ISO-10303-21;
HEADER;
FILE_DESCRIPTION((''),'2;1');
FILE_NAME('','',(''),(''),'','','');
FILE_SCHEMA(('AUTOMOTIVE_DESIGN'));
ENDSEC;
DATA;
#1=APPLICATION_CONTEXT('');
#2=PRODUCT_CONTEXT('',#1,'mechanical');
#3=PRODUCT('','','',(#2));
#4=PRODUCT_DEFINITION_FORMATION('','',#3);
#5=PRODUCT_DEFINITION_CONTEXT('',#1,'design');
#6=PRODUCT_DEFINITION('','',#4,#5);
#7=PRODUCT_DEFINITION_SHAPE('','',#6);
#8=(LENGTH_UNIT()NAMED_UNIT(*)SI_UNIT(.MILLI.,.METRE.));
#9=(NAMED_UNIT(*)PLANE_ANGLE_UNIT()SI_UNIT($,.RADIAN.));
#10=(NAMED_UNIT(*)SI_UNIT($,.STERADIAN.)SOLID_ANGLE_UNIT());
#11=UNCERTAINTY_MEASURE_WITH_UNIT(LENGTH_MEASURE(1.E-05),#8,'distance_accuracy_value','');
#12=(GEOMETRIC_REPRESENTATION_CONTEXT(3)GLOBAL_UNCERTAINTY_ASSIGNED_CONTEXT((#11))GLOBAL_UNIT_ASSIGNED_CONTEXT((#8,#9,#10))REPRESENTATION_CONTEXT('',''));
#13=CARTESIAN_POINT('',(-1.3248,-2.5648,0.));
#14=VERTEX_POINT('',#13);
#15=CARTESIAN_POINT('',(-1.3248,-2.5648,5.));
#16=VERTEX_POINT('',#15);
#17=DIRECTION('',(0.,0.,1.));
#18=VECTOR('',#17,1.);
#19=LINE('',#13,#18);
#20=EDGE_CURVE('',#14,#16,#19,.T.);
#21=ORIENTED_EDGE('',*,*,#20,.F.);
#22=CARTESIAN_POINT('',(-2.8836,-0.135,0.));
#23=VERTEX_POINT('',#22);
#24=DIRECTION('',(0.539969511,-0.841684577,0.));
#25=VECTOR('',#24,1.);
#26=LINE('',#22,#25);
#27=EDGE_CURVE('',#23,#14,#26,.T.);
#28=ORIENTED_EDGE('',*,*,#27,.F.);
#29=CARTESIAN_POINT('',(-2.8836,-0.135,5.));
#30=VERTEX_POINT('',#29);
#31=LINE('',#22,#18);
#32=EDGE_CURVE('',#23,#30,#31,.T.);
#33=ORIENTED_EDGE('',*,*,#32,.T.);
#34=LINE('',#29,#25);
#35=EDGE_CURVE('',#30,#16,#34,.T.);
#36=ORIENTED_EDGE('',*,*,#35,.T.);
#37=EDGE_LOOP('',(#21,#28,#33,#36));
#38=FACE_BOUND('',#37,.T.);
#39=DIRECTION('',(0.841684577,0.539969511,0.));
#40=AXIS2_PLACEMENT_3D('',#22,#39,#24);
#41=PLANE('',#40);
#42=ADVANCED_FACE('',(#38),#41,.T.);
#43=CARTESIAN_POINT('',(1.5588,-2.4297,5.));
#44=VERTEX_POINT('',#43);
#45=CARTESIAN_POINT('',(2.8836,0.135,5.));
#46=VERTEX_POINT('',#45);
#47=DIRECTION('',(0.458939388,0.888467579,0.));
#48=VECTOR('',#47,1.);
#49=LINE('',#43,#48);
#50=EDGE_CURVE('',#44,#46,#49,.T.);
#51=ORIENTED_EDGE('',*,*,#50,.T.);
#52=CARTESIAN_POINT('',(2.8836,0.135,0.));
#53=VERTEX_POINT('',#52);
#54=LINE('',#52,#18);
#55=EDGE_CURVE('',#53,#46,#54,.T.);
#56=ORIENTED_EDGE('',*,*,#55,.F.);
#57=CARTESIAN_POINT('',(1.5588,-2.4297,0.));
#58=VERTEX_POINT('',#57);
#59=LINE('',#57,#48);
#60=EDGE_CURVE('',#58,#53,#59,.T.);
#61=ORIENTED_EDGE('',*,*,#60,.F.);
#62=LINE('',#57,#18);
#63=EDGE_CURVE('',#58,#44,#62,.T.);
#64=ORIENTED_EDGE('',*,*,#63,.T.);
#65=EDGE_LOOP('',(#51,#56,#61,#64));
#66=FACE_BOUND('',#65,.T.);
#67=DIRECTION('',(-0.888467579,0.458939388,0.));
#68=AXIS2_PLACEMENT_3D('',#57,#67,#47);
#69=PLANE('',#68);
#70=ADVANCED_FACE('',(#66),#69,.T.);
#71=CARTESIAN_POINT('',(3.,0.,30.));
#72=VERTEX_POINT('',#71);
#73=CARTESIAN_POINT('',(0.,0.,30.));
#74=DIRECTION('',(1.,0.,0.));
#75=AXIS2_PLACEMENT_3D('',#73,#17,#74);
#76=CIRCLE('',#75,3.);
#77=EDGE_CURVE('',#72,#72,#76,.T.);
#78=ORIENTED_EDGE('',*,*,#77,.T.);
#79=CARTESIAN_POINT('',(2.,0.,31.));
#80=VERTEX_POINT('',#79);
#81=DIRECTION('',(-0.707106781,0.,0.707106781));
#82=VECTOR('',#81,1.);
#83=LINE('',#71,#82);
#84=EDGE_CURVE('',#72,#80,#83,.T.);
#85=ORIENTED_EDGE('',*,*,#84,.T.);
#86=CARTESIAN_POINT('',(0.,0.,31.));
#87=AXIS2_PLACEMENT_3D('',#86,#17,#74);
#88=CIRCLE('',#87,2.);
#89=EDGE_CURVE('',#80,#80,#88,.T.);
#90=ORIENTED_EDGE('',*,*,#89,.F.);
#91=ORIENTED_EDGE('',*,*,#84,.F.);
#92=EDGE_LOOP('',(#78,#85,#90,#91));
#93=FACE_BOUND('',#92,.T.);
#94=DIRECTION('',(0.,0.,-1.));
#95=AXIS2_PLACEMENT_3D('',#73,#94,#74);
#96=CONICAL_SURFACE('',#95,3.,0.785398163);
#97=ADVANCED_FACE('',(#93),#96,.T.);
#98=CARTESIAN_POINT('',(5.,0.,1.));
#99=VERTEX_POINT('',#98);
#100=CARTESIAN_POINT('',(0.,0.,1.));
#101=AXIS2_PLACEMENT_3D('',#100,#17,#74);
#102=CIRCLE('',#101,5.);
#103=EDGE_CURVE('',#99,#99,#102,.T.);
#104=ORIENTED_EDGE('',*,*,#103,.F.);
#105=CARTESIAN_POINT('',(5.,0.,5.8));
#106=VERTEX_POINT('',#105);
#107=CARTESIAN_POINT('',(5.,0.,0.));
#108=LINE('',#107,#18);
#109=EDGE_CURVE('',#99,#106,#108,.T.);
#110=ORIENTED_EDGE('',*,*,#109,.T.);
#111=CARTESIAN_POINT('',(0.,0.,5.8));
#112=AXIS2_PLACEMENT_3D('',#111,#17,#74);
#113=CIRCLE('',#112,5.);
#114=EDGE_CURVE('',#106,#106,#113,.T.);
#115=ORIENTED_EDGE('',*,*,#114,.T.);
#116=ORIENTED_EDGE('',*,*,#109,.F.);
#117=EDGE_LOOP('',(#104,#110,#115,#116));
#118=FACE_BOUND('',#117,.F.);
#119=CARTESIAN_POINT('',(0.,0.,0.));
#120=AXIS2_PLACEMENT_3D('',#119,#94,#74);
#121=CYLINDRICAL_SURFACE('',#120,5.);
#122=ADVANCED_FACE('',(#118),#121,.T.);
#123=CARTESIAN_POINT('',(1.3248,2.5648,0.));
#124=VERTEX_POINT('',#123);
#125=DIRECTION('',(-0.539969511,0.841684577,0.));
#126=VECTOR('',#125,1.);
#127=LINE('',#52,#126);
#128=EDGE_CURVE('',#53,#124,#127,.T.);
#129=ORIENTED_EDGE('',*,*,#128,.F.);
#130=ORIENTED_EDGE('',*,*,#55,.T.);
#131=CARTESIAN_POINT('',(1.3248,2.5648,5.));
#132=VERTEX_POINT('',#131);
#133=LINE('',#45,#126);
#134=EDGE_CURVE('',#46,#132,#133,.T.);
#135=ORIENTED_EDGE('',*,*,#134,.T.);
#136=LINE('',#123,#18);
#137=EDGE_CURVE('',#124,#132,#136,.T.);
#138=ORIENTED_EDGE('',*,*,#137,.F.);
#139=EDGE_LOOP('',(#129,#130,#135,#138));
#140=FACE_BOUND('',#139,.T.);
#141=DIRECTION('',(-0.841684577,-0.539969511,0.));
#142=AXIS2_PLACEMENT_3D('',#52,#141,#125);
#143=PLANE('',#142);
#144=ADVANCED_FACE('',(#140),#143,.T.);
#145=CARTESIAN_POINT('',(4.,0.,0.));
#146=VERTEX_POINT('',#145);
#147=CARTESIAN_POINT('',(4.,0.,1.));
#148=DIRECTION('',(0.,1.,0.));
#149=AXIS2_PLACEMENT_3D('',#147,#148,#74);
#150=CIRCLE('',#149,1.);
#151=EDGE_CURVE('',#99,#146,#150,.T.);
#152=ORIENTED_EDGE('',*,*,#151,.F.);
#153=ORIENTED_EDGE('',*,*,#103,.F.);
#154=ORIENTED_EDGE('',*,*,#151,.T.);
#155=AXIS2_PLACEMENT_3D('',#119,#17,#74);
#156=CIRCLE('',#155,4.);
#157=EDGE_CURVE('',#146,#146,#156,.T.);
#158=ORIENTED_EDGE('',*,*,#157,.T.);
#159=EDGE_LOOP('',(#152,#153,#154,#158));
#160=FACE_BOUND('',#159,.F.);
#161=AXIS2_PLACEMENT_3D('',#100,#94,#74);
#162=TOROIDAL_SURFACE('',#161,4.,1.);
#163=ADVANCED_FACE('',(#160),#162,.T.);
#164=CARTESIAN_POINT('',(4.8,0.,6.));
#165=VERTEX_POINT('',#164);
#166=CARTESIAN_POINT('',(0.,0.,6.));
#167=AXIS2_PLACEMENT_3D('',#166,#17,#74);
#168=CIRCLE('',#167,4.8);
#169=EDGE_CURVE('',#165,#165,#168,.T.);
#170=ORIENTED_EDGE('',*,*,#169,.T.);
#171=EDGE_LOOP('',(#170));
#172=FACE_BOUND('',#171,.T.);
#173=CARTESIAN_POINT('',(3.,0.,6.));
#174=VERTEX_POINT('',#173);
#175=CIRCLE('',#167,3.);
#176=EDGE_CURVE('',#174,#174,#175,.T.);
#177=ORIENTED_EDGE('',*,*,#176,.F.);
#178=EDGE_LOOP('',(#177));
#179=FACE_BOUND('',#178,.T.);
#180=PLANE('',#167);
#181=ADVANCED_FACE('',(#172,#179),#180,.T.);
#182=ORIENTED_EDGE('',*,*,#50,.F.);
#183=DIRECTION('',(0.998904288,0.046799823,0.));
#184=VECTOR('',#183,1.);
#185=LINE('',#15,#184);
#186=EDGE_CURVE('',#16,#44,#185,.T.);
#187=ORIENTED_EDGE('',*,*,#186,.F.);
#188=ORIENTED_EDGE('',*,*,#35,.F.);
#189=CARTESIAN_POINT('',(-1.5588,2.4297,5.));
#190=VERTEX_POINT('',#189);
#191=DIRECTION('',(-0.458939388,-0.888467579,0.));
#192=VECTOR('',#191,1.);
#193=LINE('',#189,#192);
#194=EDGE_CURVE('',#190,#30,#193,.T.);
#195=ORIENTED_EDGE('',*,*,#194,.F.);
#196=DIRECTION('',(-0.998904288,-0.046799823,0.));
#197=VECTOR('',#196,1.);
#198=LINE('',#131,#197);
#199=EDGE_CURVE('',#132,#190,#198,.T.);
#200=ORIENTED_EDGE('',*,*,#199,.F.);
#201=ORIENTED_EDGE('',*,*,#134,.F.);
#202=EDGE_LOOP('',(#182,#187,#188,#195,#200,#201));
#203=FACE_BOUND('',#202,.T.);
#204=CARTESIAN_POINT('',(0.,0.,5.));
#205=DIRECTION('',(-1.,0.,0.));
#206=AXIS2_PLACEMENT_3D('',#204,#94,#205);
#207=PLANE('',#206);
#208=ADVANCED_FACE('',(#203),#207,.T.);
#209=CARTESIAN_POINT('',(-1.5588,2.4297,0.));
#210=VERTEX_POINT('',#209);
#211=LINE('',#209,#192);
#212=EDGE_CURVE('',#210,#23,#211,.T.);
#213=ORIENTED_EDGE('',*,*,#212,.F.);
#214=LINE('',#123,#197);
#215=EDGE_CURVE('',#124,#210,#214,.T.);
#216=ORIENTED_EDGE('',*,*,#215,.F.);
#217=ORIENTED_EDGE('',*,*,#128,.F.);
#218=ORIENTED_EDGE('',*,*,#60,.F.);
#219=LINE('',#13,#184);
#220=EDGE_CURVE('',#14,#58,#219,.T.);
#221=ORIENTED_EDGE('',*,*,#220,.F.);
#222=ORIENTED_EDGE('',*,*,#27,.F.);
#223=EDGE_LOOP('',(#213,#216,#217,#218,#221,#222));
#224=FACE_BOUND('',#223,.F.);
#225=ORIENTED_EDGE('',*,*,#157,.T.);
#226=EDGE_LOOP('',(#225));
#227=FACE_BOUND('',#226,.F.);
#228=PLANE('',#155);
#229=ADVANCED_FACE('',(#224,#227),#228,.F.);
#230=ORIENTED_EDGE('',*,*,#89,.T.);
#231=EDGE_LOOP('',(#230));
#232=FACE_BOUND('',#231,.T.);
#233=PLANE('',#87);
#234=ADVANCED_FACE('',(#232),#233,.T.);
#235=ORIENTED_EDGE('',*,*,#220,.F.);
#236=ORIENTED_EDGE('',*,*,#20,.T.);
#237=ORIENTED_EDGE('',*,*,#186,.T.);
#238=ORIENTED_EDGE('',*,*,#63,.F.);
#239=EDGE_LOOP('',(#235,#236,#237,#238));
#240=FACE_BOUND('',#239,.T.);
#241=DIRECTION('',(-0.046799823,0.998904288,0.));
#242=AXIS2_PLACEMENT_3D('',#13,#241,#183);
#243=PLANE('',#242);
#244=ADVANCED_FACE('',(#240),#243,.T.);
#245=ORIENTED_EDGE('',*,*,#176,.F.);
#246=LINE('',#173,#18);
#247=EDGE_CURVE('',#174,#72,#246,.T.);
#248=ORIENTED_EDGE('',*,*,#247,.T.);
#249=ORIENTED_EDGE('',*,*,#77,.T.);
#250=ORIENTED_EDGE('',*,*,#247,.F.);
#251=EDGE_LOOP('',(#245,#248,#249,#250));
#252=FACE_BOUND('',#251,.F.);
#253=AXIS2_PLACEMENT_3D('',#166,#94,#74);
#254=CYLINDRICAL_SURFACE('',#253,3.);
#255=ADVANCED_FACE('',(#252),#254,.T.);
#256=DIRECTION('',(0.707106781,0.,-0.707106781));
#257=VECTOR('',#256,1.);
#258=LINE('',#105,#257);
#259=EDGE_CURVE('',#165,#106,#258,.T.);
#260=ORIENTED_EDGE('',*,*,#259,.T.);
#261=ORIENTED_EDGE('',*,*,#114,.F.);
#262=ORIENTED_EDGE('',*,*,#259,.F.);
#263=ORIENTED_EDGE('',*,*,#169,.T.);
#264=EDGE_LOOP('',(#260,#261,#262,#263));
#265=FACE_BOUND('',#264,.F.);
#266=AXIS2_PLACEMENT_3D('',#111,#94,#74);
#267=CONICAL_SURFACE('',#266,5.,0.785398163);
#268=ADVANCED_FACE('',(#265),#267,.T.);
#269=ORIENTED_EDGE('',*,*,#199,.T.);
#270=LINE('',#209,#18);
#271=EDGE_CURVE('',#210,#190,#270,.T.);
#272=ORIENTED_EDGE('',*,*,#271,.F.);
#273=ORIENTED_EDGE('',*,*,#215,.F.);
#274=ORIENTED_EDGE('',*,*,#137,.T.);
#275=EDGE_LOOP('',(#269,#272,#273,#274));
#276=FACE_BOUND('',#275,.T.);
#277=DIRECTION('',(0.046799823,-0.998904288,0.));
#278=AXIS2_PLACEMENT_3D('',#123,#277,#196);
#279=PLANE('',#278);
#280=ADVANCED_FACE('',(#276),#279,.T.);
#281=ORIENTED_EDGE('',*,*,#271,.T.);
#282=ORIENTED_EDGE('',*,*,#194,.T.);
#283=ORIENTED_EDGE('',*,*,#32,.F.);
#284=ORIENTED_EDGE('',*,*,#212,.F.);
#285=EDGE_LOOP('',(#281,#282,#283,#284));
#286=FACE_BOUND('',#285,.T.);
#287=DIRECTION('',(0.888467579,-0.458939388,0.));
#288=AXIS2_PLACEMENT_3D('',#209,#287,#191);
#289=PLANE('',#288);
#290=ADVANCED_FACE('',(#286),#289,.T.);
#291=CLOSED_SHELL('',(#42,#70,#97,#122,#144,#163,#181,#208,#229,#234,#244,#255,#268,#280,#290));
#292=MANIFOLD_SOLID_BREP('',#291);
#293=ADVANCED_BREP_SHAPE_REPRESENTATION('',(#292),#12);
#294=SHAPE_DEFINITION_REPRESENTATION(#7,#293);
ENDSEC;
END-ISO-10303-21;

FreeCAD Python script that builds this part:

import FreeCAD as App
import Part
import Sketcher
from FreeCAD import Vector
Q = App.Units.Quantity


def edges_at(feature, points):
    """Names of the edges that pass closest to the given points."""
    edges = feature.Shape.Edges
    near = lambda p: min(range(len(edges)), key=lambda i: edges[i].distToShape(Part.Vertex(*p))[0])
    return sorted({f"Edge{near(p) + 1}" for p in points})


def add_polygon(sketch, points):
    """Adds a closed chain of lines whose ends are joined by coincident constraints."""
    first, n = sketch.GeometryCount, len(points)
    for a, b in zip(points, points[1:] + points[:1]):
        sketch.addGeometry(Part.LineSegment(App.Vector(*a, 0), App.Vector(*b, 0)), False)
    for i in range(n):
        sketch.addConstraint(Sketcher.Constraint("Coincident", first + i, 2, first + (i + 1) % n, 1))

doc = App.newDocument("Part")
params = doc.addObject("Spreadsheet::Sheet", "Params")
for row, (alias, value) in enumerate([
    ("sketch1_diameter", "10 mm"),
    ("pad1_length", "6 mm"),
    ("sketch2_diameter", "6 mm"),
    ("pad2_length", "25 mm"),
    ("chamfer_size", "1 mm"),
    ("chamfer2_size", "0.2 mm"),
    ("fillet_radius", "1 mm"),
    ("pocket1_length", "5 mm"),
], start=1):
    params.set(f"A{row}", alias)
    params.set(f"B{row}", "=" + value)
    params.setAlias(f"B{row}", alias)

body = doc.addObject("PartDesign::Body", "Body")

# Sketch on XY plane
sketch1 = body.newObject("Sketcher::SketchObject", "Sketch")
sketch1.AttachmentSupport = (doc.getObject("XY_Plane"), [""])
sketch1.MapMode = "FlatFace"
sketch1.addGeometry(Part.Circle(Vector(0, 0, 0), Vector(0, 0, 1), 5), False)
sketch1.addConstraint([
    Sketcher.Constraint("Coincident", 0, 3, -1, 1),
    Sketcher.Constraint("Diameter", 0, Q("10 mm")),
])
sketch1.setExpression("Constraints[1]", "Params.sketch1_diameter")
pad1 = body.newObject("PartDesign::Pad", "Pad")
pad1.Profile = sketch1
pad1.setExpression("Length", "Params.pad1_length")

# Sketch on XY plane
sketch2 = body.newObject("Sketcher::SketchObject", "Sketch001")
sketch2.AttachmentSupport = (doc.getObject("XY_Plane"), [""])
sketch2.MapMode = "FlatFace"
sketch2.AttachmentOffset = App.Placement(Vector(0, 0, 6), App.Rotation())
sketch2.addGeometry(Part.Circle(Vector(0, 0, 0), Vector(0, 0, 1), 3), False)
sketch2.addConstraint([
    Sketcher.Constraint("Coincident", 0, 3, -1, 1),
    Sketcher.Constraint("Diameter", 0, Q("6 mm")),
])
sketch2.setExpression("Constraints[1]", "Params.sketch2_diameter")
pad2 = body.newObject("PartDesign::Pad", "Pad001")
pad2.Profile = sketch2
pad2.setExpression("Length", "Params.pad2_length")
doc.recompute()

chamfer = body.newObject("PartDesign::Chamfer", "Chamfer")
chamfer.Base = (pad2, edges_at(pad2, [(-3, 0, 31)]))
chamfer.setExpression("Size", "Params.chamfer_size")
doc.recompute()

chamfer2 = body.newObject("PartDesign::Chamfer", "Chamfer001")
chamfer2.Base = (chamfer, edges_at(chamfer, [(-5, 0, 6)]))
chamfer2.setExpression("Size", "Params.chamfer2_size")
doc.recompute()

fillet = body.newObject("PartDesign::Fillet", "Fillet")
fillet.Base = (chamfer2, edges_at(chamfer2, [(-5, 0, 0)]))
fillet.setExpression("Radius", "Params.fillet_radius")

# Sketch on XY plane
sketch3 = body.newObject("Sketcher::SketchObject", "Sketch002")
sketch3.AttachmentSupport = (doc.getObject("XY_Plane"), [""])
sketch3.MapMode = "FlatFace"
add_polygon(sketch3, [(-2.9, -0.1), (-1.6, 2.4), (1.3, 2.6), (2.9, 0.1), (1.6, -2.4), (-1.3, -2.6)])  # lines 0-5
sketch3.addConstraint([
    Sketcher.Constraint("Symmetric", 0, 2, 3, 2, -1, 1),
    Sketcher.Constraint("Symmetric", 1, 2, 4, 2, -1, 1),
    Sketcher.Constraint("Symmetric", 2, 2, 5, 2, -1, 1),
    Sketcher.Constraint("Equal", 0, 1),
    Sketcher.Constraint("Equal", 1, 2),
    Sketcher.Constraint("DistanceY", 5, 2, 2, 2, Q("0.27 mm")),
    Sketcher.Constraint("DistanceY", 0, 2, 1, 2, Q("0.135 mm")),
    Sketcher.Constraint("DistanceX", 1, 2, 3, 2, Q("0.234 mm")),
    Sketcher.Constraint("Distance", 0, Q("2.8867 mm")),
])
pocket1 = body.newObject("PartDesign::Pocket", "Pocket")
pocket1.Profile = sketch3
pocket1.setExpression("Length", "Params.pocket1_length")
pocket1.Reversed = True

doc.recompute()
